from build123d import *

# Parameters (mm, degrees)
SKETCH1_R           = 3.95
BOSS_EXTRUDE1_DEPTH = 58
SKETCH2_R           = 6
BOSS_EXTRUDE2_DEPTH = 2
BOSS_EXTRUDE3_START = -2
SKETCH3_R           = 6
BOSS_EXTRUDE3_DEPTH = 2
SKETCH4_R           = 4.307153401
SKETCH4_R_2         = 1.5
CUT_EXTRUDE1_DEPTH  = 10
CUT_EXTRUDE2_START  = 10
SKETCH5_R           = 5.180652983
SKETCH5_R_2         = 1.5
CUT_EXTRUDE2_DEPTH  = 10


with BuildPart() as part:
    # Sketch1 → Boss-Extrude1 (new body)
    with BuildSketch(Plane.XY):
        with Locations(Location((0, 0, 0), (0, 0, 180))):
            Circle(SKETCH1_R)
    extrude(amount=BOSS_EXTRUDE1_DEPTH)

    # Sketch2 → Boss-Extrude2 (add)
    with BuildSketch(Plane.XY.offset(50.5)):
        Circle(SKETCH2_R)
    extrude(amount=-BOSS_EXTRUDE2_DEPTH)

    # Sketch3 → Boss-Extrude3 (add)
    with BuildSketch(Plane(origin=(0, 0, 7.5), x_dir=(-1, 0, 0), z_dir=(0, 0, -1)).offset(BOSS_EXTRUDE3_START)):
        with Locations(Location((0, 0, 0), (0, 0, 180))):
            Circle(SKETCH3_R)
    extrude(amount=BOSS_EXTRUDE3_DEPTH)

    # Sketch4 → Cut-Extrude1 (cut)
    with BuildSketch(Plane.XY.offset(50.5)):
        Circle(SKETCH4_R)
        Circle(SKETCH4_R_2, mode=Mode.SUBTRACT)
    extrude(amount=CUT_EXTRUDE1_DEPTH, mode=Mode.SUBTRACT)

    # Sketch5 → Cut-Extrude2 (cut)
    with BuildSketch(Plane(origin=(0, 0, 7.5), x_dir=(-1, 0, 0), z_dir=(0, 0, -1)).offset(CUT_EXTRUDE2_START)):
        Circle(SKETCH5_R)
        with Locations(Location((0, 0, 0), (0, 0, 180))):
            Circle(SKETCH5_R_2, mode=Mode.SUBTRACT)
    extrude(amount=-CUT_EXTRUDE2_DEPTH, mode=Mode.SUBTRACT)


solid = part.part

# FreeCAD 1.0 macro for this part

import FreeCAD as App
import Part
import Sketcher

V = App.Vector

doc = App.newDocument("Part")
body = doc.addObject("PartDesign::Body", "Body")

# Sketch on XY plane
sketch1 = body.newObject("Sketcher::SketchObject", "Sketch")
sketch1.AttachmentSupport = (doc.getObject("XY_Plane"), [""])
sketch1.MapMode = "FlatFace"
sketch1.addGeometry(Part.Circle(V(0, 0, 0), V(0, 0, 1), 4), False)
sketch1.addConstraint(Sketcher.Constraint("Coincident", 0, 3, -1, 1))
sketch1.addConstraint(Sketcher.Constraint("Diameter", 0, 7.9))
pad1 = body.newObject("PartDesign::Pad", "Pad")
pad1.Profile = sketch1
pad1.Length = 58

# Sketch on XY plane
sketch2 = body.newObject("Sketcher::SketchObject", "Sketch001")
sketch2.AttachmentSupport = (doc.getObject("XY_Plane"), [""])
sketch2.MapMode = "FlatFace"
sketch2.AttachmentOffset = App.Placement(V(0, 0, 50.5), App.Rotation())
sketch2.addGeometry(Part.Circle(V(0, 0, 0), V(0, 0, 1), 6), False)
sketch2.addConstraint(Sketcher.Constraint("Coincident", 0, 3, -1, 1))
sketch2.addConstraint(Sketcher.Constraint("Diameter", 0, 12.0))
pad2 = body.newObject("PartDesign::Pad", "Pad001")
pad2.Profile = sketch2
pad2.Length = 2
pad2.Reversed = True

# Sketch on XY plane
sketch3 = body.newObject("Sketcher::SketchObject", "Sketch002")
sketch3.AttachmentSupport = (doc.getObject("XY_Plane"), [""])
sketch3.MapMode = "FlatFace"
sketch3.AttachmentOffset = App.Placement(V(0, 0, 9.5), App.Rotation())
sketch3.addGeometry(Part.Circle(V(0, 0, 0), V(0, 0, 1), 6), False)
sketch3.addConstraint(Sketcher.Constraint("Coincident", 0, 3, -1, 1))
sketch3.addConstraint(Sketcher.Constraint("Diameter", 0, 12.0))
pad3 = body.newObject("PartDesign::Pad", "Pad002")
pad3.Profile = sketch3
pad3.Length = 2
pad3.Reversed = True

# Sketch on XY plane
sketch4 = body.newObject("Sketcher::SketchObject", "Sketch003")
sketch4.AttachmentSupport = (doc.getObject("XY_Plane"), [""])
sketch4.MapMode = "FlatFace"
sketch4.AttachmentOffset = App.Placement(V(0, 0, 50.5), App.Rotation())
sketch4.addGeometry(Part.Circle(V(0, 0, 0), V(0, 0, 1), 4.3), False)
sketch4.addGeometry(Part.Circle(V(0, 0, 0), V(0, 0, 1), 1.5), False)
sketch4.addConstraint(Sketcher.Constraint("Coincident", 0, 3, -1, 1))
sketch4.addConstraint(Sketcher.Constraint("Coincident", 1, 3, -1, 1))
sketch4.addConstraint(Sketcher.Constraint("Diameter", 1, 3.0))
sketch4.addConstraint(Sketcher.Constraint("Diameter", 0, 8.614307))
pocket1 = body.newObject("PartDesign::Pocket", "Pocket")
pocket1.Profile = sketch4
pocket1.Length = 10
pocket1.Reversed = True

# Sketch on XY plane
sketch5 = body.newObject("Sketcher::SketchObject", "Sketch004")
sketch5.AttachmentSupport = (doc.getObject("XY_Plane"), [""])
sketch5.MapMode = "FlatFace"
sketch5.AttachmentOffset = App.Placement(V(0, 0, -2.5), App.Rotation())
sketch5.addGeometry(Part.Circle(V(0, 0, 0), V(0, 0, 1), 5.2), False)
sketch5.addGeometry(Part.Circle(V(0, 0, 0), V(0, 0, 1), 1.5), False)
sketch5.addConstraint(Sketcher.Constraint("Coincident", 0, 3, -1, 1))
sketch5.addConstraint(Sketcher.Constraint("Coincident", 1, 3, -1, 1))
sketch5.addConstraint(Sketcher.Constraint("Diameter", 1, 3.0))
sketch5.addConstraint(Sketcher.Constraint("Diameter", 0, 10.361306))
pocket2 = body.newObject("PartDesign::Pocket", "Pocket001")
pocket2.Profile = sketch5
pocket2.Length = 10
pocket2.Reversed = True

doc.recompute()
